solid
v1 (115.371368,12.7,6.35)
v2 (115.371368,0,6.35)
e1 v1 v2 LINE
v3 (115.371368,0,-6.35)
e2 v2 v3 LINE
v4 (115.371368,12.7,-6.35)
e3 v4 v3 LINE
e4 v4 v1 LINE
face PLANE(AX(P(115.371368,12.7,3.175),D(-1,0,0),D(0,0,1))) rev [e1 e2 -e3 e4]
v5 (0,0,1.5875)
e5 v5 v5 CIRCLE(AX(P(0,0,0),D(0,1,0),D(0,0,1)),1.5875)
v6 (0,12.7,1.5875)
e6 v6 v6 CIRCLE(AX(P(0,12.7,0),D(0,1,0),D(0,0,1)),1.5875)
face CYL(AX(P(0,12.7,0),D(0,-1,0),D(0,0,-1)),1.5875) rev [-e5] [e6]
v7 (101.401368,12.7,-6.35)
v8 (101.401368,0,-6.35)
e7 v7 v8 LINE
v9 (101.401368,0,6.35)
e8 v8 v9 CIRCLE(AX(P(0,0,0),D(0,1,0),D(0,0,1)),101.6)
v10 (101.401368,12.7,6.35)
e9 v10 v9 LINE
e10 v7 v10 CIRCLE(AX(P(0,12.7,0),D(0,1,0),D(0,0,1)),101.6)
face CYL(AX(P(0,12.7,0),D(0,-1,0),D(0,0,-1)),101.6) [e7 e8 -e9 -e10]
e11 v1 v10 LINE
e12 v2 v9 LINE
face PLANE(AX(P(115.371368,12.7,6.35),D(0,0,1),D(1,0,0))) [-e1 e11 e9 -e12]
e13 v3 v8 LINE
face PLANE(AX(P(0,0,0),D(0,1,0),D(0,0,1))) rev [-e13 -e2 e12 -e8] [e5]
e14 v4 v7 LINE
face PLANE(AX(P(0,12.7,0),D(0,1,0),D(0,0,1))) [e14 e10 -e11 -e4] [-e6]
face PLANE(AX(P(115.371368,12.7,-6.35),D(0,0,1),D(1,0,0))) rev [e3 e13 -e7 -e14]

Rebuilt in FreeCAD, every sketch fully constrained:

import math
import FreeCAD as App
import Part
import Sketcher
Q = App.Units.Quantity

doc = App.newDocument("Part")
params = doc.addObject("Spreadsheet::Sheet", "Params")
for row, (alias, value) in enumerate([
    ("sketch1_radius", "4 in"),
    ("sketch1_diameter", "0.125 in"),
    ("sketch1_height", "0.5 in"),
    ("sketch1_width", "0.55 in"),
    ("pad1_length", "0.5 in"),
], start=1):
    params.set(f"A{row}", alias)
    params.set(f"B{row}", "=" + value)
    params.setAlias(f"B{row}", alias)

body = doc.addObject("PartDesign::Body", "Body")

# Sketch on XZ plane
sketch1 = body.newObject("Sketcher::SketchObject", "Sketch")
sketch1.AttachmentSupport = (doc.getObject("XZ_Plane"), [""])
sketch1.MapMode = "FlatFace"
sketch1.addGeometry(Part.LineSegment(App.Vector(115.4, -6.3, 0), App.Vector(101.4, -6.3, 0)), False)
sketch1.addGeometry(Part.ArcOfCircle(Part.Circle(App.Vector(0, 0, 0), App.Vector(0, 0, 1), 101.6), math.radians(4), math.radians(356)), False)
sketch1.addGeometry(Part.LineSegment(App.Vector(101.4, 6.3, 0), App.Vector(115.4, 6.3, 0)), False)
sketch1.addGeometry(Part.LineSegment(App.Vector(115.4, 6.3, 0), App.Vector(115.4, -6.3, 0)), False)
sketch1.addGeometry(Part.Circle(App.Vector(0, 0, 0), App.Vector(0, 0, 1), 1.6), False)
sketch1.addConstraint(Sketcher.Constraint("Coincident", 0, 2, 1, 2))
sketch1.addConstraint(Sketcher.Constraint("Coincident", 1, 1, 2, 1))
sketch1.addConstraint(Sketcher.Constraint("Coincident", 2, 2, 3, 1))
sketch1.addConstraint(Sketcher.Constraint("Coincident", 3, 2, 0, 1))
sketch1.addConstraint(Sketcher.Constraint("Horizontal", 0))
sketch1.addConstraint(Sketcher.Constraint("Horizontal", 2))
sketch1.addConstraint(Sketcher.Constraint("Vertical", 3))
sketch1.addConstraint(Sketcher.Constraint("Coincident", 1, 3, -1, 1))
sketch1.addConstraint(Sketcher.Constraint("Coincident", 4, 3, -1, 1))
sketch1.addConstraint(Sketcher.Constraint("Vertical", 0, 2, 1, 1))
sketch1.addConstraint(Sketcher.Constraint("Radius", 1, Q("4 in")))
sketch1.addConstraint(Sketcher.Constraint("Diameter", 4, Q("0.125 in")))
sketch1.addConstraint(Sketcher.Constraint("DistanceY", 3, 2, 3, 1, Q("0.5 in")))
sketch1.addConstraint(Sketcher.Constraint("DistanceX", 0, 2, 0, 1, Q("0.55 in")))
sketch1.setExpression("Constraints[10]", "Params.sketch1_radius")
sketch1.setExpression("Constraints[11]", "Params.sketch1_diameter")
sketch1.setExpression("Constraints[12]", "Params.sketch1_height")
sketch1.setExpression("Constraints[13]", "Params.sketch1_width")
pad1 = body.newObject("PartDesign::Pad", "Pad")
pad1.Profile = sketch1
pad1.setExpression("Length", "Params.pad1_length")
pad1.Reversed = True

doc.recompute()
